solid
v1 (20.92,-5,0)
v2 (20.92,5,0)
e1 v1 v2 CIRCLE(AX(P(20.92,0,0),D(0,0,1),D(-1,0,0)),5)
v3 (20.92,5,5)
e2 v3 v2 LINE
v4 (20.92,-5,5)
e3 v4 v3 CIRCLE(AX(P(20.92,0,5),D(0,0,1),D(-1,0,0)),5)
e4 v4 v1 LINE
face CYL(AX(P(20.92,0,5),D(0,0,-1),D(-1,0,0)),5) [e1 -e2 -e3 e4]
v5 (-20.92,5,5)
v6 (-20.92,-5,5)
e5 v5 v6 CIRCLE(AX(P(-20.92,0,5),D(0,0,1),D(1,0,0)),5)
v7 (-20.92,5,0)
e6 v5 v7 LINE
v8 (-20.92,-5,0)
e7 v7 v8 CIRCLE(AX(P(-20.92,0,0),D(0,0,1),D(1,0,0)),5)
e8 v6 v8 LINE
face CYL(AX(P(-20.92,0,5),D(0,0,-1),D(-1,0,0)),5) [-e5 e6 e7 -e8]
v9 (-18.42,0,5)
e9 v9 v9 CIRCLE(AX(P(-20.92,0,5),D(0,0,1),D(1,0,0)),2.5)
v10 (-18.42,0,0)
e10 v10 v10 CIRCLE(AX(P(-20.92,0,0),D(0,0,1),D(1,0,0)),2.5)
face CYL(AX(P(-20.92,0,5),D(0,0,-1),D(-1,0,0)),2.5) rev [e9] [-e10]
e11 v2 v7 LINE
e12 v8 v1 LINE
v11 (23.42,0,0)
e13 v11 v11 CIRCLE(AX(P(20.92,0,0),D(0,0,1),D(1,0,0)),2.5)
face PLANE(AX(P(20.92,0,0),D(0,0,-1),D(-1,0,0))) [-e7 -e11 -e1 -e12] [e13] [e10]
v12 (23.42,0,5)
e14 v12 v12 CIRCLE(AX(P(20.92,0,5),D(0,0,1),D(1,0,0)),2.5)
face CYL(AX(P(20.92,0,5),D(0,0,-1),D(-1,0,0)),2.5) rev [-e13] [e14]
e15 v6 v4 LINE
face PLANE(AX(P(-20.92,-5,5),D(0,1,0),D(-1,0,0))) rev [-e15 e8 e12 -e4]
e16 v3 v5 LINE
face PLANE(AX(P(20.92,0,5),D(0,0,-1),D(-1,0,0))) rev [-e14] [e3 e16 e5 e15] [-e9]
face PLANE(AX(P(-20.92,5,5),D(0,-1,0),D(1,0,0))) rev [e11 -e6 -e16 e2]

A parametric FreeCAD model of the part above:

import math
import FreeCAD as App
import Part
import Sketcher
from FreeCAD import Vector
Q = App.Units.Quantity

doc = App.newDocument("Part")
body = doc.addObject("PartDesign::Body", "Body")

sketch1 = body.newObject("Sketcher::SketchObject", "Sketch")
sketch1.AttachmentSupport = (doc.getObject("XY_Plane"), [""])
sketch1.MapMode = "FlatFace"
sketch1.addGeometry([
    Part.LineSegment(Vector(20.9, 5, 0), Vector(-20.9, 5, 0)),
    Part.ArcOfCircle(Part.Circle(Vector(-20.9, 0, 0), Vector(0, 0, 1), 5), math.radians(90), math.radians(270)),
    Part.LineSegment(Vector(-20.9, -5, 0), Vector(20.9, -5, 0)),
    Part.ArcOfCircle(Part.Circle(Vector(20.9, 0, 0), Vector(0, 0, 1), 5), math.radians(-90), math.radians(90)),
    Part.Circle(Vector(20.9, 0, 0), Vector(0, 0, 1), 2.5),
    Part.Circle(Vector(-20.9, 0, 0), Vector(0, 0, 1), 2.5),
], False)
sketch1.addConstraint([
    Sketcher.Constraint("Tangent", 0, 2, 1, 1),
    Sketcher.Constraint("Tangent", 1, 2, 2, 1),
    Sketcher.Constraint("Tangent", 2, 2, 3, 1),
    Sketcher.Constraint("Tangent", 3, 2, 0, 1),
    Sketcher.Constraint("Horizontal", 0),
    Sketcher.Constraint("Horizontal", 2),
    Sketcher.Constraint("Coincident", 4, 3, 3, 3),
    Sketcher.Constraint("Coincident", 5, 3, 1, 3),
    Sketcher.Constraint("Equal", 4, 5),
    Sketcher.Constraint("Symmetric", 1, 3, 3, 3, -1, 1),
    Sketcher.Constraint("Diameter", 4, Q("5 mm")),
    Sketcher.Constraint("Radius", 1, Q("5 mm")),
    Sketcher.Constraint("DistanceX", 0, 2, 0, 1, Q("41.84 mm")),
])
pad1 = body.newObject("PartDesign::Pad", "Pad")
pad1.Profile = sketch1
pad1.Length = 5

doc.recompute()
